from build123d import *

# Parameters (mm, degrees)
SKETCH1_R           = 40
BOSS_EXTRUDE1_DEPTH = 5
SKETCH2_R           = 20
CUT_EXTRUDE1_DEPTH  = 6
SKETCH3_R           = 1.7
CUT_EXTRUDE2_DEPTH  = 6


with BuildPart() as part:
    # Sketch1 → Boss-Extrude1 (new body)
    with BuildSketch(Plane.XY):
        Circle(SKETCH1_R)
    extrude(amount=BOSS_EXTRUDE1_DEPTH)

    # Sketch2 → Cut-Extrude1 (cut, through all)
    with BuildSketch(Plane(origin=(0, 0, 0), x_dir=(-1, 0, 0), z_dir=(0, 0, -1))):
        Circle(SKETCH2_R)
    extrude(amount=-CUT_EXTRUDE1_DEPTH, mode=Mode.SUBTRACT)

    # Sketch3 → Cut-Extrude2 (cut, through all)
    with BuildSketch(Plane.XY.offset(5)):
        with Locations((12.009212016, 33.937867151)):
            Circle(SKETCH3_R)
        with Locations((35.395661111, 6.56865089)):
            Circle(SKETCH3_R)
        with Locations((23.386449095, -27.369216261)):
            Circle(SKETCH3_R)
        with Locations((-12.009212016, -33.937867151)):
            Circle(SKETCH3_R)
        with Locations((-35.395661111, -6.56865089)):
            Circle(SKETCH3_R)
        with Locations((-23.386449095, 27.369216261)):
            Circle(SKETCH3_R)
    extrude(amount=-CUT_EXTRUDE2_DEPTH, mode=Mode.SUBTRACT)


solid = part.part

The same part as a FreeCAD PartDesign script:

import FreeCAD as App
import Part
import Sketcher

V = App.Vector

doc = App.newDocument("Part")
body = doc.addObject("PartDesign::Body", "Body")

# Sketch on XY plane
sketch1 = body.newObject("Sketcher::SketchObject", "Sketch")
sketch1.AttachmentSupport = (doc.getObject("XY_Plane"), [""])
sketch1.MapMode = "FlatFace"
sketch1.addGeometry(Part.Circle(V(0, 0, 0), V(0, 0, 1), 40), False)
sketch1.addConstraint([
    Sketcher.Constraint("Coincident", 0, 3, -1, 1),
    Sketcher.Constraint("Diameter", 0, 80.0),
])
pad1 = body.newObject("PartDesign::Pad", "Pad")
pad1.Profile = sketch1
pad1.Length = 5

# Sketch on XY plane
sketch2 = body.newObject("Sketcher::SketchObject", "Sketch001")
sketch2.AttachmentSupport = (doc.getObject("XY_Plane"), [""])
sketch2.MapMode = "FlatFace"
sketch2.addGeometry(Part.Circle(V(0, 0, 0), V(0, 0, 1), 20), False)
sketch2.addConstraint([
    Sketcher.Constraint("Coincident", 0, 3, -1, 1),
    Sketcher.Constraint("Diameter", 0, 40.0),
])
pocket1 = body.newObject("PartDesign::Pocket", "Pocket")
pocket1.Profile = sketch2
pocket1.Type = "ThroughAll"
pocket1.Reversed = True

# Sketch on XY plane
sketch3 = body.newObject("Sketcher::SketchObject", "Sketch002")
sketch3.AttachmentSupport = (doc.getObject("XY_Plane"), [""])
sketch3.MapMode = "FlatFace"
sketch3.AttachmentOffset = App.Placement(V(0, 0, 5), App.Rotation())
sketch3.addGeometry([
    Part.Circle(V(12, 33.9, 0), V(0, 0, 1), 1.7),  # 0
    Part.Circle(V(35.4, 6.6, 0), V(0, 0, 1), 1.7),  # 1
    Part.Circle(V(23.4, -27.4, 0), V(0, 0, 1), 1.7),  # 2
    Part.Circle(V(-12, -33.9, 0), V(0, 0, 1), 1.7),  # 3
    Part.Circle(V(-35.4, -6.6, 0), V(0, 0, 1), 1.7),  # 4
    Part.Circle(V(-23.4, 27.4, 0), V(0, 0, 1), 1.7),  # 5
], False)
sketch3.addConstraint([
    Sketcher.Constraint("Equal", 0, 1),
    Sketcher.Constraint("Equal", 1, 2),
    Sketcher.Constraint("Equal", 2, 3),
    Sketcher.Constraint("Equal", 3, 4),
    Sketcher.Constraint("Equal", 4, 5),
    Sketcher.Constraint("Symmetric", 0, 3, 3, 3, -1, 1),
    Sketcher.Constraint("Symmetric", 1, 3, 4, 3, -1, 1),
    Sketcher.Constraint("Symmetric", 2, 3, 5, 3, -1, 1),
    Sketcher.Constraint("Diameter", 0, 3.4),
    Sketcher.Constraint("DistanceY", 4, 3, 1, 3, 13.137302),
    Sketcher.Constraint("DistanceX", 5, 3, 2, 3, 46.772898),
    Sketcher.Constraint("DistanceX", -1, 1, 1, 3, 35.395661),
    Sketcher.Constraint("DistanceX", 0, 3, 1, 3, 23.386449),
    Sketcher.Constraint("DistanceY", 3, 3, 2, 3, 6.568651),
    Sketcher.Constraint("DistanceY", 3, 3, 1, 3, 40.506518),
])
pocket2 = body.newObject("PartDesign::Pocket", "Pocket001")
pocket2.Profile = sketch3
pocket2.Type = "ThroughAll"

doc.recompute()
